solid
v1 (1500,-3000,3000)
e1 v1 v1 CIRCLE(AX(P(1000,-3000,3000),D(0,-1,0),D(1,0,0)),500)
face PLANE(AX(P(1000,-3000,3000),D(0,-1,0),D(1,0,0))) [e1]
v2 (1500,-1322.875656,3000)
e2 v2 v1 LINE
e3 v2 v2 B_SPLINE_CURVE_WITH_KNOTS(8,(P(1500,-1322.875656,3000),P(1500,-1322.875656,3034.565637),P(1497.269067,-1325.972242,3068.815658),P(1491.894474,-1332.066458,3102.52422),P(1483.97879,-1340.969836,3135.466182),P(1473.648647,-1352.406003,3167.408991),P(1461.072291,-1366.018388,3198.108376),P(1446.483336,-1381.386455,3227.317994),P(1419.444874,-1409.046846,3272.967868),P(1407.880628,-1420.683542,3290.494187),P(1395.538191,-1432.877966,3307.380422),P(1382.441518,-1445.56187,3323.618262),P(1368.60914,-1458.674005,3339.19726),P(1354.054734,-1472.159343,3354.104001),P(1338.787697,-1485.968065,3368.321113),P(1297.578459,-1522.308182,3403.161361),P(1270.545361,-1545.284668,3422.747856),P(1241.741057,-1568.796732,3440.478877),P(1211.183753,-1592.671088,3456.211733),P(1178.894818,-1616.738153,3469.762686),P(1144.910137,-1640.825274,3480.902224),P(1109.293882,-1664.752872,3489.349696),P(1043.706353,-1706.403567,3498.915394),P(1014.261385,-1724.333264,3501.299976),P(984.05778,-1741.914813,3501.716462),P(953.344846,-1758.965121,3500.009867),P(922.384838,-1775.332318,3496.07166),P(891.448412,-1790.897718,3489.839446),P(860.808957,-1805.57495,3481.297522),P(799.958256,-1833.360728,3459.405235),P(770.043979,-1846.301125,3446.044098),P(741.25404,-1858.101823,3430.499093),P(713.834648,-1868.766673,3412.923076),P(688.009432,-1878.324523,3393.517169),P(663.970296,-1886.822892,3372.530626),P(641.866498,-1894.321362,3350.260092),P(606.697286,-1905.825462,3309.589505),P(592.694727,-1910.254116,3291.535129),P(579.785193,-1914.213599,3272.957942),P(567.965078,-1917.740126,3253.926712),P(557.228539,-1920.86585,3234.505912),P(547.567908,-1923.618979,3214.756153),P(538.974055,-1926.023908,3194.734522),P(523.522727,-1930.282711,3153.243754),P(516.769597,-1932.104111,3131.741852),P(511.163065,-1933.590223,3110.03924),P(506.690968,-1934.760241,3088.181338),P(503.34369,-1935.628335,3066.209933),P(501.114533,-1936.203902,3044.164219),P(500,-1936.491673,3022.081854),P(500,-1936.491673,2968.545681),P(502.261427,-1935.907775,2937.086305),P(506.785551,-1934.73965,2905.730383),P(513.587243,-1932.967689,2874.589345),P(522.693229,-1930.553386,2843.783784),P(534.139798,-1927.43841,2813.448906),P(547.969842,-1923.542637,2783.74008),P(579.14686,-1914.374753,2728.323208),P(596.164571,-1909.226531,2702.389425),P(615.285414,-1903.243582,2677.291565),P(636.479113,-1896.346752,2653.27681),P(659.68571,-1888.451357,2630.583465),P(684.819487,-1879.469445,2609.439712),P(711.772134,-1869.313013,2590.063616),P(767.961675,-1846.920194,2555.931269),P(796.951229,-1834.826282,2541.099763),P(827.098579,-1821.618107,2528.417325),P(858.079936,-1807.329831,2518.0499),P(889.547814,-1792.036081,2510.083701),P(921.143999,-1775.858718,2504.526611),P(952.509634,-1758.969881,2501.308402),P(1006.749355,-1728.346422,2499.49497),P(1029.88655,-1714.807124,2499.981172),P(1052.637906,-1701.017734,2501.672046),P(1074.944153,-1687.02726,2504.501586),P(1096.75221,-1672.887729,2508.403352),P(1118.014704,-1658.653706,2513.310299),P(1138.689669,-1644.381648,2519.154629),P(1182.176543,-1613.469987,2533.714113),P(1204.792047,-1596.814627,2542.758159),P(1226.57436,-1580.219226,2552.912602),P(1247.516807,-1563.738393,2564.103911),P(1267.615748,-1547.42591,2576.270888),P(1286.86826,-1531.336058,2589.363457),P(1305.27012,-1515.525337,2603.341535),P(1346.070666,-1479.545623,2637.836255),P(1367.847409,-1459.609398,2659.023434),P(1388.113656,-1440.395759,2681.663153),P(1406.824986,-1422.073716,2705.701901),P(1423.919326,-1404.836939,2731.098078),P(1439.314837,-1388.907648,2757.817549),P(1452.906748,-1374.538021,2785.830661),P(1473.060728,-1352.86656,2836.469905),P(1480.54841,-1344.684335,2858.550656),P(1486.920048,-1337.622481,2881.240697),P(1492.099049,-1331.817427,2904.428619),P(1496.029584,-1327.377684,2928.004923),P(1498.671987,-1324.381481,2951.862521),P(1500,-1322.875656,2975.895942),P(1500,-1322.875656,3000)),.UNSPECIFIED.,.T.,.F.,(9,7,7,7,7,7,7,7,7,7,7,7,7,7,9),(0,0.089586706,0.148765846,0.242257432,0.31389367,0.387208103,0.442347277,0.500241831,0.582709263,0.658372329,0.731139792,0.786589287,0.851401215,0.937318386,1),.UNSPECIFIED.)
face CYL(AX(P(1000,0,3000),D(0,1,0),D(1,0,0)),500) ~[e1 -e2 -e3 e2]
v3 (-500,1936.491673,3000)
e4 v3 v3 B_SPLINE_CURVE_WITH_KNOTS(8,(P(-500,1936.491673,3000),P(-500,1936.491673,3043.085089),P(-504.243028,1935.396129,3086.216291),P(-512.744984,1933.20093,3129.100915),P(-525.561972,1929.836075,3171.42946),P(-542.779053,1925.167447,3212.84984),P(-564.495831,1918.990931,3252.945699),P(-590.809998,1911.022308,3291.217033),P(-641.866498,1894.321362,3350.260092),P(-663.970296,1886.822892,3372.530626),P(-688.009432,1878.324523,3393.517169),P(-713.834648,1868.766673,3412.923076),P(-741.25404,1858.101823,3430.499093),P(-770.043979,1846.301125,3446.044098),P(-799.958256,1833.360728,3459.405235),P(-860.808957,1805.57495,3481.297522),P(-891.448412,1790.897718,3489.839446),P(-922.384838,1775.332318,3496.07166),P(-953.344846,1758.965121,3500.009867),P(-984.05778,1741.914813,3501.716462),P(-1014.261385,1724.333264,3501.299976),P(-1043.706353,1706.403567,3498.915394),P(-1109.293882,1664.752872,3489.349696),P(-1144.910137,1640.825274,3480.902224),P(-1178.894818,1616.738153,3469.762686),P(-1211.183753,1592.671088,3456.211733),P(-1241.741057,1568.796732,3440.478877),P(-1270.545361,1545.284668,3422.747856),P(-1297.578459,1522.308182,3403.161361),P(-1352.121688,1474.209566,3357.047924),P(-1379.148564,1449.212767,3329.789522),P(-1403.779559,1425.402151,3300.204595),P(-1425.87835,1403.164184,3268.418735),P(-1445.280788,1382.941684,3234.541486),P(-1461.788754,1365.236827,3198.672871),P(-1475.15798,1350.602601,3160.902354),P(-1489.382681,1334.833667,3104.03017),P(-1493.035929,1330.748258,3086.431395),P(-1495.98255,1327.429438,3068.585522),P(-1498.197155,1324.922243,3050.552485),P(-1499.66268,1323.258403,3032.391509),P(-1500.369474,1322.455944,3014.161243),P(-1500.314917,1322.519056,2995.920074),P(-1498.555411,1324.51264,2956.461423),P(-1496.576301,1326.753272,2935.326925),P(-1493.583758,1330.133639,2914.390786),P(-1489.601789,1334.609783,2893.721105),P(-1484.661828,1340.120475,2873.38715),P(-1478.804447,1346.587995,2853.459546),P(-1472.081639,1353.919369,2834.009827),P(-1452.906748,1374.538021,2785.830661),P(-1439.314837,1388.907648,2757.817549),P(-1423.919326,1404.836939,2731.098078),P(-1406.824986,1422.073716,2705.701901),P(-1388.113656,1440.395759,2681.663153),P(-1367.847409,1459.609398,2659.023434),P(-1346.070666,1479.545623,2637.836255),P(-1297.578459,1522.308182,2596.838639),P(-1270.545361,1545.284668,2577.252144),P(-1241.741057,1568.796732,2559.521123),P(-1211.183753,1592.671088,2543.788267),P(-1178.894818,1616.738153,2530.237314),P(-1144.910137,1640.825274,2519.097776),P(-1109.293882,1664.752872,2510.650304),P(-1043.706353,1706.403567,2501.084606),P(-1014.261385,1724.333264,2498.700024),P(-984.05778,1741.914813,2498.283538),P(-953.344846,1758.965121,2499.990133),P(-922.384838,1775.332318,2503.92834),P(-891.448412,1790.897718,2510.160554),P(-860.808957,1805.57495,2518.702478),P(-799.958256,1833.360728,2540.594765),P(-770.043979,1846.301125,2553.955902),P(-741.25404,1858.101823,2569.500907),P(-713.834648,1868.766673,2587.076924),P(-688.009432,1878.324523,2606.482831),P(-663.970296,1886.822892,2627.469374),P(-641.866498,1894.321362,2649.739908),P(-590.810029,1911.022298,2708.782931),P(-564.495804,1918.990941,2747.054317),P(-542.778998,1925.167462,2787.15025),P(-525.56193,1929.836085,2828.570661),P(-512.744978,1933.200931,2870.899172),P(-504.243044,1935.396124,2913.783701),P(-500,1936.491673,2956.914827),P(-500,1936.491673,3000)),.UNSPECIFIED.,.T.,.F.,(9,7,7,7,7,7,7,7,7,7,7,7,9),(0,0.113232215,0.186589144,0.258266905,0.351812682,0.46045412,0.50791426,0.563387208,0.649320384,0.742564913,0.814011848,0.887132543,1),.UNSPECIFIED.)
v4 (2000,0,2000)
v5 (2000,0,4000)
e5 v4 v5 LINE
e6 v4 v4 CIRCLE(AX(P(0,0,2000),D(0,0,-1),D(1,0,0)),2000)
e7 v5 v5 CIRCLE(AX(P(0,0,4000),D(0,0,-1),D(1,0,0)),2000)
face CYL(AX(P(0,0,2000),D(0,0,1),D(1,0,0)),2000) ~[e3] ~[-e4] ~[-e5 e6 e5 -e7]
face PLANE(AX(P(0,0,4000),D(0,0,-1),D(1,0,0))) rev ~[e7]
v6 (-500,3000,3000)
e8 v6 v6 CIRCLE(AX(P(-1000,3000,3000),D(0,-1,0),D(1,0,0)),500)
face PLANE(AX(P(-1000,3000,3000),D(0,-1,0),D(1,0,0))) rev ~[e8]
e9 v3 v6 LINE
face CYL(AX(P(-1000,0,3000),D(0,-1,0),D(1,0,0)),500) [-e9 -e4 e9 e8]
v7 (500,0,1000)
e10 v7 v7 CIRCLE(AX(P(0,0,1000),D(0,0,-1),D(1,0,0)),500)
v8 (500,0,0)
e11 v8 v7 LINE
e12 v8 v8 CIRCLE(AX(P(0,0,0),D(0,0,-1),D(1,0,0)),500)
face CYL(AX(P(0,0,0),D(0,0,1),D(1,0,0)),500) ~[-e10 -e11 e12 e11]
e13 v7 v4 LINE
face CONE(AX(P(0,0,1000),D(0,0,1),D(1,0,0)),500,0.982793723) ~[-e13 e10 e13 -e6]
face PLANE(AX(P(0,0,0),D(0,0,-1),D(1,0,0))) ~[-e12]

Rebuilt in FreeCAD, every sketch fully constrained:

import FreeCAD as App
import Part
import Sketcher
Q = App.Units.Quantity

doc = App.newDocument("Part")
params = doc.addObject("Spreadsheet::Sheet", "Params")
for row, (alias, value) in enumerate([
    ("sketch1_width", "500 mm"),
    ("sketch1_width2", "2000 mm"),
    ("sketch1_height", "4000 mm"),
    ("sketch1_height2", "1000 mm"),
    ("revolution_angle", "360 deg"),
    ("sketch2_diameter", "1000 mm"),
    ("pad1_length", "3000 mm"),
    ("sketch3_diameter", "1000 mm"),
    ("pad2_length", "3000 mm"),
], start=1):
    params.set(f"A{row}", alias)
    params.set(f"B{row}", "=" + value)
    params.setAlias(f"B{row}", alias)

body = doc.addObject("PartDesign::Body", "Body")

sketch1 = body.newObject("Sketcher::SketchObject", "Sketch")
sketch1.AttachmentSupport = (doc.getObject("XZ_Plane"), [""])
sketch1.MapMode = "FlatFace"
sketch1.addGeometry(Part.LineSegment(App.Vector(0, 4000, 0), App.Vector(0, 0, 0)), False)
sketch1.addGeometry(Part.LineSegment(App.Vector(0, 0, 0), App.Vector(500, 0, 0)), False)
sketch1.addGeometry(Part.LineSegment(App.Vector(500, 0, 0), App.Vector(500, 1000, 0)), False)
sketch1.addGeometry(Part.LineSegment(App.Vector(500, 1000, 0), App.Vector(2000, 2000, 0)), False)
sketch1.addGeometry(Part.LineSegment(App.Vector(2000, 2000, 0), App.Vector(2000, 4000, 0)), False)
sketch1.addGeometry(Part.LineSegment(App.Vector(2000, 4000, 0), App.Vector(0, 4000, 0)), False)
sketch1.addConstraint(Sketcher.Constraint("Coincident", 0, 2, 1, 1))
sketch1.addConstraint(Sketcher.Constraint("Coincident", 1, 2, 2, 1))
sketch1.addConstraint(Sketcher.Constraint("Coincident", 2, 2, 3, 1))
sketch1.addConstraint(Sketcher.Constraint("Coincident", 3, 2, 4, 1))
sketch1.addConstraint(Sketcher.Constraint("Coincident", 4, 2, 5, 1))
sketch1.addConstraint(Sketcher.Constraint("Coincident", 5, 2, 0, 1))
sketch1.addConstraint(Sketcher.Constraint("Vertical", 0))
sketch1.addConstraint(Sketcher.Constraint("Horizontal", 1))
sketch1.addConstraint(Sketcher.Constraint("Vertical", 2))
sketch1.addConstraint(Sketcher.Constraint("Vertical", 4))
sketch1.addConstraint(Sketcher.Constraint("Horizontal", 5))
sketch1.addConstraint(Sketcher.Constraint("Coincident", 0, 2, -1, 1))
sketch1.addConstraint(Sketcher.Constraint("Equal", 5, 4))
sketch1.addConstraint(Sketcher.Constraint("DistanceX", 1, 1, 1, 2, Q("500 mm")))
sketch1.addConstraint(Sketcher.Constraint("DistanceX", 5, 2, 5, 1, Q("2000 mm")))
sketch1.addConstraint(Sketcher.Constraint("DistanceY", 0, 2, 0, 1, Q("4000 mm")))
sketch1.addConstraint(Sketcher.Constraint("DistanceY", 2, 1, 2, 2, Q("1000 mm")))
sketch1.setExpression("Constraints[13]", "Params.sketch1_width")
sketch1.setExpression("Constraints[14]", "Params.sketch1_width2")
sketch1.setExpression("Constraints[15]", "Params.sketch1_height")
sketch1.setExpression("Constraints[16]", "Params.sketch1_height2")
revolution = body.newObject("PartDesign::Revolution", "Revolution")
revolution.Profile = sketch1
revolution.ReferenceAxis = (sketch1, ["V_Axis"])
revolution.setExpression("Angle", "Params.revolution_angle")

sketch2 = body.newObject("Sketcher::SketchObject", "Sketch001")
sketch2.AttachmentSupport = (doc.getObject("XZ_Plane"), [""])
sketch2.MapMode = "FlatFace"
sketch2.addGeometry(Part.Circle(App.Vector(1000, 3000, 0), App.Vector(0, 0, 1), 500), False)
sketch2.addConstraint(Sketcher.Constraint("Diameter", 0, Q("1000 mm")))
sketch2.addConstraint(Sketcher.Constraint("DistanceX", -1, 1, 0, 3, Q("1000 mm")))
sketch2.addConstraint(Sketcher.Constraint("DistanceY", -1, 1, 0, 3, Q("3000 mm")))
sketch2.setExpression("Constraints[0]", "Params.sketch2_diameter")
pad1 = body.newObject("PartDesign::Pad", "Pad")
pad1.Profile = sketch2
pad1.setExpression("Length", "Params.pad1_length")

sketch3 = body.newObject("Sketcher::SketchObject", "Sketch002")
sketch3.AttachmentSupport = (doc.getObject("XZ_Plane"), [""])
sketch3.MapMode = "FlatFace"
sketch3.addGeometry(Part.Circle(App.Vector(-1000, 3000, 0), App.Vector(0, 0, 1), 500), False)
sketch3.addConstraint(Sketcher.Constraint("Diameter", 0, Q("1000 mm")))
sketch3.addConstraint(Sketcher.Constraint("DistanceX", 0, 3, -1, 1, Q("1000 mm")))
sketch3.addConstraint(Sketcher.Constraint("DistanceY", -1, 1, 0, 3, Q("3000 mm")))
sketch3.setExpression("Constraints[0]", "Params.sketch3_diameter")
pad2 = body.newObject("PartDesign::Pad", "Pad001")
pad2.Profile = sketch3
pad2.setExpression("Length", "Params.pad2_length")
pad2.Reversed = True

doc.recompute()
